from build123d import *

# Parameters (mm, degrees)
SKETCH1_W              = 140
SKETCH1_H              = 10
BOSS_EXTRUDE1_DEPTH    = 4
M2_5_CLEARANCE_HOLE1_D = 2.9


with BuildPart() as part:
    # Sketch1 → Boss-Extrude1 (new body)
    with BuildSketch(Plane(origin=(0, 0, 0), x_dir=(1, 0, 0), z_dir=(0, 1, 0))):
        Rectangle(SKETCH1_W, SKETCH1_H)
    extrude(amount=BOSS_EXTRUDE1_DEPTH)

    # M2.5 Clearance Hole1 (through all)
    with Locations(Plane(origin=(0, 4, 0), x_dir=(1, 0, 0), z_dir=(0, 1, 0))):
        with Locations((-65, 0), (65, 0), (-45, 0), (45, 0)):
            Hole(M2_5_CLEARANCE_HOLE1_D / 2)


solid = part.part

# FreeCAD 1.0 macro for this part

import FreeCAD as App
import Part
import Sketcher

V = App.Vector
Q = App.Units.Quantity


def add_polygon(sketch, points):
    """Adds a closed chain of lines whose ends are joined by coincident constraints."""
    first, n = sketch.GeometryCount, len(points)
    for a, b in zip(points, points[1:] + points[:1]):
        sketch.addGeometry(Part.LineSegment(App.Vector(*a, 0), App.Vector(*b, 0)), False)
    for i in range(n):
        sketch.addConstraint(Sketcher.Constraint("Coincident", first + i, 2, first + (i + 1) % n, 1))

doc = App.newDocument("Part")
body = doc.addObject("PartDesign::Body", "Body")

# Sketch on XZ plane
sketch1 = doc.addObject("Sketcher::SketchObject", "Sketch")
body.addObject(sketch1)
sketch1.AttachmentSupport = (doc.XZ_Plane, [""])
sketch1.MapMode = "FlatFace"
add_polygon(sketch1, [(-70, -5), (-70, 5), (70, 5), (70, -5)])  # lines 0-3
sketch1.addConstraint(Sketcher.Constraint("Vertical", 0))
sketch1.addConstraint(Sketcher.Constraint("Horizontal", 1))
sketch1.addConstraint(Sketcher.Constraint("Vertical", 2))
sketch1.addConstraint(Sketcher.Constraint("Horizontal", 3))
sketch1.addConstraint(Sketcher.Constraint("Symmetric", 0, 2, 2, 2, -1, 1))
sketch1.addConstraint(Sketcher.Constraint("DistanceX", 1, 1, 1, 2, Q("140 mm")))
sketch1.addConstraint(Sketcher.Constraint("DistanceY", 0, 1, 0, 2, Q("10 mm")))
pad1 = doc.addObject("PartDesign::Pad", "Pad")
body.addObject(pad1)
pad1.Profile = sketch1
pad1.Length = 4
pad1.Reversed = True

# Sketch on XZ plane
sketch2 = doc.addObject("Sketcher::SketchObject", "Sketch001")
body.addObject(sketch2)
sketch2.AttachmentSupport = (doc.XZ_Plane, [""])
sketch2.MapMode = "FlatFace"
sketch2.AttachmentOffset = App.Placement(V(0, 0, -4), App.Rotation())
sketch2.addGeometry(Part.Circle(V(-65, 0, 0), V(0, 0, 1), 1.4), False)
sketch2.addGeometry(Part.Circle(V(65, 0, 0), V(0, 0, 1), 1.4), False)
sketch2.addGeometry(Part.Circle(V(-45, 0, 0), V(0, 0, 1), 1.4), False)
sketch2.addGeometry(Part.Circle(V(45, 0, 0), V(0, 0, 1), 1.4), False)
sketch2.addConstraint(Sketcher.Constraint("Equal", 0, 1))
sketch2.addConstraint(Sketcher.Constraint("Equal", 1, 2))
sketch2.addConstraint(Sketcher.Constraint("Equal", 2, 3))
sketch2.addConstraint(Sketcher.Constraint("Symmetric", 0, 3, 1, 3, -1, 1))
sketch2.addConstraint(Sketcher.Constraint("Symmetric", 2, 3, 3, 3, -1, 1))
sketch2.addConstraint(Sketcher.Constraint("PointOnObject", 0, 3, -1))
sketch2.addConstraint(Sketcher.Constraint("PointOnObject", 2, 3, -1))
sketch2.addConstraint(Sketcher.Constraint("Diameter", 0, Q("2.9 mm")))
sketch2.addConstraint(Sketcher.Constraint("DistanceX", 0, 3, -1, 1, Q("65 mm")))
sketch2.addConstraint(Sketcher.Constraint("DistanceX", 2, 3, -1, 1, Q("45 mm")))
doc.recompute()
hole = doc.addObject("PartDesign::Hole", "Hole")
body.addObject(hole)
hole.Profile = sketch2
hole.ThreadType = "None"
hole.Diameter = 2.9
hole.DepthType = "ThroughAll"
hole.Reversed = True

doc.recompute()
